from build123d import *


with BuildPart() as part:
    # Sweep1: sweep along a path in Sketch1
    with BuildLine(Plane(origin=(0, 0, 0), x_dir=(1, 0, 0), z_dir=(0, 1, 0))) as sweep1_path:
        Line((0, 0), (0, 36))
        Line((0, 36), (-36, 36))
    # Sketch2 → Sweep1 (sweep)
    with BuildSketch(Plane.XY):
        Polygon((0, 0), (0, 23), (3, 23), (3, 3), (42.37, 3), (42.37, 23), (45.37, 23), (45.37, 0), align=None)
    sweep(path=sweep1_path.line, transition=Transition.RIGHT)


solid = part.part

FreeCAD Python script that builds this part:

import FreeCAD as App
import Part
import Sketcher

V = App.Vector

doc = App.newDocument("Part")
body = doc.addObject("PartDesign::Body", "Body")

sketch1 = doc.addObject("Sketcher::SketchObject", "Sketch")
body.addObject(sketch1)
sketch1.AttachmentSupport = (doc.XY_Plane, [""])
sketch1.MapMode = "FlatFace"
sketch1.addGeometry([
    Part.LineSegment(V(0, 23, 0), V(0, 0, 0)),
    Part.LineSegment(V(0, 0, 0), V(45.4, 0, 0)),
    Part.LineSegment(V(45.4, 0, 0), V(45.4, 23, 0)),
    Part.LineSegment(V(45.4, 23, 0), V(42.4, 23, 0)),
    Part.LineSegment(V(42.4, 23, 0), V(42.4, 3, 0)),
    Part.LineSegment(V(42.4, 3, 0), V(3, 3, 0)),
    Part.LineSegment(V(3, 3, 0), V(3, 23, 0)),
    Part.LineSegment(V(3, 23, 0), V(0, 23, 0)),
], False)
sketch1.addConstraint([
    Sketcher.Constraint("Coincident", 0, 2, 1, 1),
    Sketcher.Constraint("Coincident", 1, 2, 2, 1),
    Sketcher.Constraint("Coincident", 2, 2, 3, 1),
    Sketcher.Constraint("Coincident", 3, 2, 4, 1),
    Sketcher.Constraint("Coincident", 4, 2, 5, 1),
    Sketcher.Constraint("Coincident", 5, 2, 6, 1),
    Sketcher.Constraint("Coincident", 6, 2, 7, 1),
    Sketcher.Constraint("Coincident", 7, 2, 0, 1),
    Sketcher.Constraint("Vertical", 0),
    Sketcher.Constraint("Horizontal", 1),
    Sketcher.Constraint("Vertical", 2),
    Sketcher.Constraint("Horizontal", 3),
    Sketcher.Constraint("Vertical", 4),
    Sketcher.Constraint("Horizontal", 5),
    Sketcher.Constraint("Vertical", 6),
    Sketcher.Constraint("Horizontal", 7),
    Sketcher.Constraint("Coincident", 0, 2, -1, 1),
    Sketcher.Constraint("Horizontal", 3, 2, 6, 2),
    Sketcher.Constraint("Equal", 3, 7),
    Sketcher.Constraint("DistanceX", 3, 2, 3, 1, 3.0),
    Sketcher.Constraint("DistanceY", 0, 2, 0, 1, 23.0),
    Sketcher.Constraint("DistanceY", 4, 2, 4, 1, 20.0),
    Sketcher.Constraint("DistanceX", 1, 1, 1, 2, 45.37),
])

sketch2 = doc.addObject("Sketcher::SketchObject", "Sketch001")
body.addObject(sketch2)
sketch2.AttachmentSupport = (doc.XZ_Plane, [""])
sketch2.MapMode = "FlatFace"
sketch2.addGeometry([
    Part.LineSegment(V(0, 0, 0), V(0, -36, 0)),
    Part.LineSegment(V(0, -36, 0), V(-36, -36, 0)),
], False)
sketch2.addConstraint([
    Sketcher.Constraint("Coincident", 0, 2, 1, 1),
    Sketcher.Constraint("Vertical", 0),
    Sketcher.Constraint("Horizontal", 1),
    Sketcher.Constraint("Coincident", 0, 1, -1, 1),
    Sketcher.Constraint("Equal", 1, 0),
    Sketcher.Constraint("DistanceX", 1, 2, 1, 1, 36.0),
])
doc.recompute()

additivepipe = doc.addObject("PartDesign::AdditivePipe", "AdditivePipe")
body.addObject(additivepipe)
additivepipe.Profile = sketch1
additivepipe.Spine = (sketch2, ["Edge1", "Edge2"])
additivepipe.Transition = "Right corner"

doc.recompute()
